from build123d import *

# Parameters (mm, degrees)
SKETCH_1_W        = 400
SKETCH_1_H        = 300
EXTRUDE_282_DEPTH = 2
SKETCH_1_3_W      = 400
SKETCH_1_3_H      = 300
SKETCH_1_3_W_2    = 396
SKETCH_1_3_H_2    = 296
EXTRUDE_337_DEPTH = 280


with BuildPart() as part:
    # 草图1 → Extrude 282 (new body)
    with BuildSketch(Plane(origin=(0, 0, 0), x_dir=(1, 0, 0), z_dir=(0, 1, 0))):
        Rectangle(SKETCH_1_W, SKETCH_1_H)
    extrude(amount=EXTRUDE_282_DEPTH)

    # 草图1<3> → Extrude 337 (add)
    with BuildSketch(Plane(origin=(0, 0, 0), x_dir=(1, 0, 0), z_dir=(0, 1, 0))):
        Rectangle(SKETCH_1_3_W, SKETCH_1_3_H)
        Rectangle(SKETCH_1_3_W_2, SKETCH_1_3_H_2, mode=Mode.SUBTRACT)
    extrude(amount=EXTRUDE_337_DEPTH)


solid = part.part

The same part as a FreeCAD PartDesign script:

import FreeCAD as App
import Part
import Sketcher


def add_polygon(sketch, points):
    """Adds a closed chain of lines whose ends are joined by coincident constraints."""
    first, n = sketch.GeometryCount, len(points)
    for a, b in zip(points, points[1:] + points[:1]):
        sketch.addGeometry(Part.LineSegment(App.Vector(*a, 0), App.Vector(*b, 0)), False)
    for i in range(n):
        sketch.addConstraint(Sketcher.Constraint("Coincident", first + i, 2, first + (i + 1) % n, 1))

doc = App.newDocument("Part")
body = doc.addObject("PartDesign::Body", "Body")

sketch1 = body.newObject("Sketcher::SketchObject", "Sketch")
sketch1.AttachmentSupport = (doc.getObject("XZ_Plane"), [""])
sketch1.MapMode = "FlatFace"
add_polygon(sketch1, [(-200, -150), (-200, 150), (200, 150), (200, -150)])
sketch1.addConstraint([
    Sketcher.Constraint("Vertical", 0),
    Sketcher.Constraint("Horizontal", 1),
    Sketcher.Constraint("Vertical", 2),
    Sketcher.Constraint("Horizontal", 3),
    Sketcher.Constraint("Symmetric", 0, 2, 2, 2, -1, 1),
    Sketcher.Constraint("DistanceX", 1, 1, 1, 2, 400.0),
    Sketcher.Constraint("DistanceY", 0, 1, 0, 2, 300.0),
])
pad1 = body.newObject("PartDesign::Pad", "Pad")
pad1.Profile = sketch1
pad1.Length = 2
pad1.Reversed = True

sketch2 = body.newObject("Sketcher::SketchObject", "Sketch001")
sketch2.AttachmentSupport = (doc.getObject("XZ_Plane"), [""])
sketch2.MapMode = "FlatFace"
add_polygon(sketch2, [(-200, -150), (-200, 150), (200, 150), (200, -150)])
add_polygon(sketch2, [(198, 148), (-198, 148), (-198, -148), (198, -148)])
sketch2.addConstraint([
    Sketcher.Constraint("Vertical", 0),
    Sketcher.Constraint("Horizontal", 1),
    Sketcher.Constraint("Vertical", 2),
    Sketcher.Constraint("Horizontal", 3),
    Sketcher.Constraint("Horizontal", 4),
    Sketcher.Constraint("Vertical", 5),
    Sketcher.Constraint("Horizontal", 6),
    Sketcher.Constraint("Vertical", 7),
    Sketcher.Constraint("Symmetric", 0, 2, 2, 2, -1, 1),
    Sketcher.Constraint("Symmetric", 4, 2, 6, 2, -1, 1),
    Sketcher.Constraint("DistanceX", 1, 1, 1, 2, 400.0),
    Sketcher.Constraint("DistanceX", 4, 2, 4, 1, 396.0),
    Sketcher.Constraint("DistanceY", 0, 1, 0, 2, 300.0),
    Sketcher.Constraint("DistanceY", 5, 2, 5, 1, 296.0),
])
pad2 = body.newObject("PartDesign::Pad", "Pad001")
pad2.Profile = sketch2
pad2.Length = 280
pad2.Reversed = True

doc.recompute()
